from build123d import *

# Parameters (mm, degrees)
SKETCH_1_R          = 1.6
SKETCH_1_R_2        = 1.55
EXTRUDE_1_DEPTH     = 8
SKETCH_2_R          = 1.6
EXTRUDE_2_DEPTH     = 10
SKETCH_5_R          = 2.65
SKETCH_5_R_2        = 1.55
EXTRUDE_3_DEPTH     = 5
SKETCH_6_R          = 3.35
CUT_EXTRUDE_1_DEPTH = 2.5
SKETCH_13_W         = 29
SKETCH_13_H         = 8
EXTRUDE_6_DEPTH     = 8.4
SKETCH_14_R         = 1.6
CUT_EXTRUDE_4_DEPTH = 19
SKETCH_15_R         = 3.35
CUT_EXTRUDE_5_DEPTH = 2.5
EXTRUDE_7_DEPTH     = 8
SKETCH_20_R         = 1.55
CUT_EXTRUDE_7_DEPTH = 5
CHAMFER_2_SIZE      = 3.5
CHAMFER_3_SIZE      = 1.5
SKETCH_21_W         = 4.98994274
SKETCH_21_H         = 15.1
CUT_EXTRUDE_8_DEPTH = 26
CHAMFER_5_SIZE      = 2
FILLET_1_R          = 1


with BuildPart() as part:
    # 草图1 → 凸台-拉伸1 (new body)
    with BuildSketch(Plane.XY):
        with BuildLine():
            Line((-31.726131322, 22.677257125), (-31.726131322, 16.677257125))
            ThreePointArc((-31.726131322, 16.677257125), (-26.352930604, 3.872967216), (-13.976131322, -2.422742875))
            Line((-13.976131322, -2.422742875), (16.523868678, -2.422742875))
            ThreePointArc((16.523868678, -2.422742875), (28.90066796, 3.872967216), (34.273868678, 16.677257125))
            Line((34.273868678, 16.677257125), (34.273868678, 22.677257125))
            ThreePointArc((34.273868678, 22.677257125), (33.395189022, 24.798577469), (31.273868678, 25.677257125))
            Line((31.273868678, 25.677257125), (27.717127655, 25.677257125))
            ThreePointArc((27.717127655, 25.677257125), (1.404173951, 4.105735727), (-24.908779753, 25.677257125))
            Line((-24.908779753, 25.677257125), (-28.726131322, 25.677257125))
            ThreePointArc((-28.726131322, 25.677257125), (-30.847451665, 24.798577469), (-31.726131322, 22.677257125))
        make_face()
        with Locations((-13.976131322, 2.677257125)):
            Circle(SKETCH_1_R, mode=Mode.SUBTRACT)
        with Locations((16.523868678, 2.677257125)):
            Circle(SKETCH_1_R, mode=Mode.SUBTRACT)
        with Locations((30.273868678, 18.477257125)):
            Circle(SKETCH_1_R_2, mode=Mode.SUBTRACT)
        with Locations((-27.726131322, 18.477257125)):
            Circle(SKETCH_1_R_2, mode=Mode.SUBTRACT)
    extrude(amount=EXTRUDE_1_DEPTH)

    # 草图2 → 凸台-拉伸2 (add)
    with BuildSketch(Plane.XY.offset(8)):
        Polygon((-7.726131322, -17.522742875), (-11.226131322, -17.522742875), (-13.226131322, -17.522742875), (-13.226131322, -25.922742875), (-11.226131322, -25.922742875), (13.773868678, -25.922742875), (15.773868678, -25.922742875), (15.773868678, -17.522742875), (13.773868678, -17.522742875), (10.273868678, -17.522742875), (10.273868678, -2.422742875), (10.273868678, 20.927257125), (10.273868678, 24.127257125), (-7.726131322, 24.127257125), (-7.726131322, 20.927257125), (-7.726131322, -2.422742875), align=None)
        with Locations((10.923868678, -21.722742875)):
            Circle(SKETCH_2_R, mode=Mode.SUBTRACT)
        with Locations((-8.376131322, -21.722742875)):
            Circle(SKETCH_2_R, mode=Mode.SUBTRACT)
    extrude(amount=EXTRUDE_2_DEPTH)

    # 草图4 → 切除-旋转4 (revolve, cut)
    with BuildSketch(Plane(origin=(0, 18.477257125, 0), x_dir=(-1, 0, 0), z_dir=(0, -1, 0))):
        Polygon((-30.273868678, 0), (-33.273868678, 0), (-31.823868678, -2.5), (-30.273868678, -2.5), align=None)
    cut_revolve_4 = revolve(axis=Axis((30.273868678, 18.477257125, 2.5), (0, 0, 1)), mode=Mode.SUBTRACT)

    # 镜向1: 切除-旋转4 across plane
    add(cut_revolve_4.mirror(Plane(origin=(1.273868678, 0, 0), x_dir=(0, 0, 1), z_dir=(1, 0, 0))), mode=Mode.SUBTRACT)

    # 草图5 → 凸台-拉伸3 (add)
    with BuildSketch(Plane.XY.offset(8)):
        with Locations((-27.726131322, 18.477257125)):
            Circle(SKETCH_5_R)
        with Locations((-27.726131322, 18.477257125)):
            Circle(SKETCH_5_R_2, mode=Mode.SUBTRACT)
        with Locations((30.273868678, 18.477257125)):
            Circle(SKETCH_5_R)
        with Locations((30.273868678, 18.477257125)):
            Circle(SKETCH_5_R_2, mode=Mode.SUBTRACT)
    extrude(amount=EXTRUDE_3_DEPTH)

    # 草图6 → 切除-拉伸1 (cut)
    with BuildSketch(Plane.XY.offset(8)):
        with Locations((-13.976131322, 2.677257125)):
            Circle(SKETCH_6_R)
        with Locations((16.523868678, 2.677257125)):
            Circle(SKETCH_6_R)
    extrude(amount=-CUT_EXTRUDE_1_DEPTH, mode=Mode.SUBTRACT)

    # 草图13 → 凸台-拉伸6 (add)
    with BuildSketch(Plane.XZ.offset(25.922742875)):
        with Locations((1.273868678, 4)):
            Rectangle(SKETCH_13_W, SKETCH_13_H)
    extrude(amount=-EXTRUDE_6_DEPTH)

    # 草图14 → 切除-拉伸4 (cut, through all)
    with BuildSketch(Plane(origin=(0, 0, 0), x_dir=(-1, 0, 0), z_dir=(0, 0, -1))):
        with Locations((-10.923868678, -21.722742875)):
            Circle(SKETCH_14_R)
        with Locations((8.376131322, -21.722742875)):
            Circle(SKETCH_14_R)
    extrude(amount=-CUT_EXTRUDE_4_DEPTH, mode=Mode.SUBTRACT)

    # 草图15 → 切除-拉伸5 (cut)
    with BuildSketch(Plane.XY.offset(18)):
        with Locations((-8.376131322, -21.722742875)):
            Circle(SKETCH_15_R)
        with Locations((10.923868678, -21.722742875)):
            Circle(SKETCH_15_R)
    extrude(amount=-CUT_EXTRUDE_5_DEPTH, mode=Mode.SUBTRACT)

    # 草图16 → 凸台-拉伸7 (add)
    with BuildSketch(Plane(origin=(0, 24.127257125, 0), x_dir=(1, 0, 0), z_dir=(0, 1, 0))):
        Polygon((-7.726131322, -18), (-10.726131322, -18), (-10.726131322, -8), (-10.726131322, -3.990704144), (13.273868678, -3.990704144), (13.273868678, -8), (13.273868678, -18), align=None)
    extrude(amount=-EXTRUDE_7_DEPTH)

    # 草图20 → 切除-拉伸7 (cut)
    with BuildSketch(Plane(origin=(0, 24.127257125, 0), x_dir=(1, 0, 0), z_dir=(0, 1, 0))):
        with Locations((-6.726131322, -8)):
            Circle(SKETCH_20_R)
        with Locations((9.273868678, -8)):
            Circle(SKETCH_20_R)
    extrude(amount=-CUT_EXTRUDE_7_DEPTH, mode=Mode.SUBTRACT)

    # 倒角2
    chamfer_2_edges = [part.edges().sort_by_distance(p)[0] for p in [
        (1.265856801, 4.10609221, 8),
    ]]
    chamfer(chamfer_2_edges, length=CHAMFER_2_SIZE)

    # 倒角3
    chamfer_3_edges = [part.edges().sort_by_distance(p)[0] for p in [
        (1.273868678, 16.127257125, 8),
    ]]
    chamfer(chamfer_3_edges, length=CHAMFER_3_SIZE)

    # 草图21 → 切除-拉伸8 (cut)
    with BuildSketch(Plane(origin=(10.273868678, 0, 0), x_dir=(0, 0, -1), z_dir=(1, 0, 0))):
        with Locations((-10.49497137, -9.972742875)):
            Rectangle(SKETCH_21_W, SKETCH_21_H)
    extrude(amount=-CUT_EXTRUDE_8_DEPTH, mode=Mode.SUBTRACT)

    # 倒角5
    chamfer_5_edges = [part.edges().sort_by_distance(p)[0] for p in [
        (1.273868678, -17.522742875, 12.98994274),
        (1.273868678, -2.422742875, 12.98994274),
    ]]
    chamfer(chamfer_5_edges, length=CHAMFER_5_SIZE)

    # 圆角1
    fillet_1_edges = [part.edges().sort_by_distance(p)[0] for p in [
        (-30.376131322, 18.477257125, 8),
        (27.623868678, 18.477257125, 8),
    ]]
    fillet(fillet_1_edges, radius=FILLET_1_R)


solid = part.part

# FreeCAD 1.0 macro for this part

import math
import FreeCAD as App
import Part
import Sketcher

V = App.Vector


def edges_at(feature, points):
    """Names of the edges that pass closest to the given points."""
    edges = feature.Shape.Edges
    near = lambda p: min(range(len(edges)), key=lambda i: edges[i].distToShape(Part.Vertex(*p))[0])
    return sorted({f"Edge{near(p) + 1}" for p in points})


def add_polygon(sketch, points):
    """Adds a closed chain of lines whose ends are joined by coincident constraints."""
    first, n = sketch.GeometryCount, len(points)
    for a, b in zip(points, points[1:] + points[:1]):
        sketch.addGeometry(Part.LineSegment(App.Vector(*a, 0), App.Vector(*b, 0)), False)
    for i in range(n):
        sketch.addConstraint(Sketcher.Constraint("Coincident", first + i, 2, first + (i + 1) % n, 1))

doc = App.newDocument("Part")
body = doc.addObject("PartDesign::Body", "Body")

# Sketch on XY plane
sketch1 = body.newObject("Sketcher::SketchObject", "Sketch")
sketch1.AttachmentSupport = (doc.getObject("XY_Plane"), [""])
sketch1.MapMode = "FlatFace"
sketch1.addGeometry(Part.LineSegment(V(-31.726131, 22.677257, 0), V(-31.726131, 16.677257, 0)), False)
sketch1.addGeometry(Part.ArcOfCircle(Part.Circle(V(-11.579797, 17.601927, 0), V(0, 0, 1), 20.167543), math.radians(-177.372103), math.radians(-96.824083)), False)
sketch1.addGeometry(Part.LineSegment(V(-13.976131, -2.422743, 0), V(16.523869, -2.422743, 0)), False)
sketch1.addGeometry(Part.ArcOfCircle(Part.Circle(V(14.127534, 17.601927, 0), V(0, 0, 1), 20.167543), math.radians(-83.175917), math.radians(-2.627897)), False)
sketch1.addGeometry(Part.LineSegment(V(34.273869, 16.677257, 0), V(34.273869, 22.677257, 0)), False)
sketch1.addGeometry(Part.ArcOfCircle(Part.Circle(V(31.273869, 22.677257, 0), V(0, 0, 1), 3), math.radians(0), math.radians(90)), False)
sketch1.addGeometry(Part.LineSegment(V(31.273869, 25.677257, 0), V(27.717128, 25.677257, 0)), False)
sketch1.addGeometry(Part.ArcOfCircle(Part.Circle(V(1.404174, 30.939774, 0), V(0, 0, 1), 26.834038), math.radians(-168.690222), math.radians(-11.309778)), False)
sketch1.addGeometry(Part.LineSegment(V(-24.90878, 25.677257, 0), V(-28.726131, 25.677257, 0)), False)
sketch1.addGeometry(Part.ArcOfCircle(Part.Circle(V(-28.726131, 22.677257, 0), V(0, 0, 1), 3), math.radians(90), math.radians(180)), False)
sketch1.addGeometry(Part.Circle(V(-13.976131, 2.677257, 0), V(0, 0, 1), 1.6), False)
sketch1.addGeometry(Part.Circle(V(16.523869, 2.677257, 0), V(0, 0, 1), 1.6), False)
sketch1.addGeometry(Part.Circle(V(-27.726131, 18.477257, 0), V(0, 0, 1), 1.55), False)
sketch1.addGeometry(Part.Circle(V(30.273869, 18.477257, 0), V(0, 0, 1), 1.55), False)
sketch1.addConstraint(Sketcher.Constraint("Coincident", 0, 2, 1, 1))
sketch1.addConstraint(Sketcher.Constraint("Coincident", 1, 2, 2, 1))
sketch1.addConstraint(Sketcher.Constraint("Coincident", 2, 2, 3, 1))
sketch1.addConstraint(Sketcher.Constraint("Coincident", 3, 2, 4, 1))
sketch1.addConstraint(Sketcher.Constraint("Tangent", 4, 2, 5, 1))
sketch1.addConstraint(Sketcher.Constraint("Tangent", 5, 2, 6, 1))
sketch1.addConstraint(Sketcher.Constraint("Coincident", 6, 2, 7, 2))
sketch1.addConstraint(Sketcher.Constraint("Coincident", 7, 1, 8, 1))
sketch1.addConstraint(Sketcher.Constraint("Tangent", 8, 2, 9, 1))
sketch1.addConstraint(Sketcher.Constraint("Tangent", 9, 2, 0, 1))
sketch1.addConstraint(Sketcher.Constraint("Vertical", 0))
sketch1.addConstraint(Sketcher.Constraint("Horizontal", 2))
sketch1.addConstraint(Sketcher.Constraint("Vertical", 4))
sketch1.addConstraint(Sketcher.Constraint("Horizontal", 6))
sketch1.addConstraint(Sketcher.Constraint("Horizontal", 8))
sketch1.addConstraint(Sketcher.Constraint("Equal", 1, 3))
sketch1.addConstraint(Sketcher.Constraint("Equal", 5, 9))
sketch1.addConstraint(Sketcher.Constraint("Equal", 10, 11))
sketch1.addConstraint(Sketcher.Constraint("Equal", 12, 13))
sketch1.addConstraint(Sketcher.Constraint("Horizontal", 1, 3, 3, 3))
sketch1.addConstraint(Sketcher.Constraint("Horizontal", 5, 3, 9, 3))
sketch1.addConstraint(Sketcher.Constraint("Horizontal", 10, 3, 11, 3))
sketch1.addConstraint(Sketcher.Constraint("Horizontal", 12, 3, 13, 3))
sketch1.addConstraint(Sketcher.Constraint("Horizontal", 0, 2, 3, 2))
sketch1.addConstraint(Sketcher.Constraint("Vertical", 10, 3, 1, 2))
sketch1.addConstraint(Sketcher.Constraint("Vertical", 11, 3, 2, 2))
sketch1.addConstraint(Sketcher.Constraint("Radius", 5, 3.0))
sketch1.addConstraint(Sketcher.Constraint("Diameter", 10, 3.2))
sketch1.addConstraint(Sketcher.Constraint("Diameter", 12, 3.1))
sketch1.addConstraint(Sketcher.Constraint("DistanceY", 0, 2, 0, 1, 6.0))
sketch1.addConstraint(Sketcher.Constraint("DistanceX", 2, 1, 2, 2, 30.5))
sketch1.addConstraint(Sketcher.Constraint("DistanceX", 9, 3, 5, 3, 60.0))
sketch1.addConstraint(Sketcher.Constraint("DistanceY", 10, 3, 9, 3, 20.0))
sketch1.addConstraint(Sketcher.Constraint("DistanceX", 9, 3, 12, 3, 1.0))
sketch1.addConstraint(Sketcher.Constraint("DistanceX", 13, 3, 5, 3, 1.0))
sketch1.addConstraint(Sketcher.Constraint("DistanceY", 12, 3, 9, 3, 4.2))
sketch1.addConstraint(Sketcher.Constraint("DistanceY", 1, 2, 10, 3, 5.1))
sketch1.addConstraint(Sketcher.Constraint("Radius", 7, 26.834038))
sketch1.addConstraint(Sketcher.Constraint("Radius", 1, 20.167543))
sketch1.addConstraint(Sketcher.Constraint("DistanceX", 6, 2, 6, 1, 3.556741))
sketch1.addConstraint(Sketcher.Constraint("DistanceX", 8, 2, 8, 1, 3.817352))
sketch1.addConstraint(Sketcher.Constraint("DistanceX", -1, 1, 5, 3, 31.273869))
sketch1.addConstraint(Sketcher.Constraint("DistanceY", -1, 1, 1, 3, 17.601927))
pad1 = body.newObject("PartDesign::Pad", "Pad")
pad1.Profile = sketch1
pad1.Length = 8

# Sketch on XY plane
sketch2 = body.newObject("Sketcher::SketchObject", "Sketch001")
sketch2.AttachmentSupport = (doc.getObject("XY_Plane"), [""])
sketch2.MapMode = "FlatFace"
sketch2.AttachmentOffset = App.Placement(V(0, 0, 8), App.Rotation())
add_polygon(sketch2, [(-7.726131, -17.522743), (-13.226131, -17.522743), (-13.226131, -25.922743), (15.773869, -25.922743), (15.773869, -17.522743), (10.273869, -17.522743), (10.273869, 24.127257), (-7.726131, 24.127257)])  # lines 0-7
sketch2.addGeometry(Part.Circle(V(-8.376131, -21.722743, 0), V(0, 0, 1), 1.6), False)  # 8
sketch2.addGeometry(Part.Circle(V(10.923869, -21.722743, 0), V(0, 0, 1), 1.6), False)  # 9
sketch2.addConstraint(Sketcher.Constraint("Horizontal", 0))
sketch2.addConstraint(Sketcher.Constraint("Vertical", 1))
sketch2.addConstraint(Sketcher.Constraint("Horizontal", 2))
sketch2.addConstraint(Sketcher.Constraint("Vertical", 3))
sketch2.addConstraint(Sketcher.Constraint("Horizontal", 4))
sketch2.addConstraint(Sketcher.Constraint("Vertical", 5))
sketch2.addConstraint(Sketcher.Constraint("Horizontal", 6))
sketch2.addConstraint(Sketcher.Constraint("Vertical", 7))
sketch2.addConstraint(Sketcher.Constraint("Equal", 8, 9))
sketch2.addConstraint(Sketcher.Constraint("Horizontal", 8, 3, 9, 3))
sketch2.addConstraint(Sketcher.Constraint("Horizontal", 0, 2, 3, 2))
sketch2.addConstraint(Sketcher.Constraint("Equal", 0, 4))
sketch2.addConstraint(Sketcher.Constraint("Diameter", 8, 3.2))
sketch2.addConstraint(Sketcher.Constraint("DistanceX", 2, 1, 2, 2, 29.0))
sketch2.addConstraint(Sketcher.Constraint("DistanceX", 6, 2, 6, 1, 18.0))
sketch2.addConstraint(Sketcher.Constraint("DistanceY", 1, 2, 1, 1, 8.4))
sketch2.addConstraint(Sketcher.Constraint("DistanceY", 5, 1, 5, 2, 41.65))
sketch2.addConstraint(Sketcher.Constraint("DistanceX", 8, 3, 9, 3, 19.3))
sketch2.addConstraint(Sketcher.Constraint("DistanceY", 8, 3, 0, 2, 4.2))
sketch2.addConstraint(Sketcher.Constraint("DistanceX", 0, 2, 8, 3, 4.85))
sketch2.addConstraint(Sketcher.Constraint("DistanceX", 8, 3, -1, 1, 8.376131))
sketch2.addConstraint(Sketcher.Constraint("DistanceY", 8, 3, -1, 1, 21.722743))
pad2 = body.newObject("PartDesign::Pad", "Pad001")
pad2.Profile = sketch2
pad2.Length = 10

# Sketch on XZ plane
sketch3 = body.newObject("Sketcher::SketchObject", "Sketch002")
sketch3.AttachmentSupport = (doc.getObject("XZ_Plane"), [""])
sketch3.MapMode = "FlatFace"
sketch3.AttachmentOffset = App.Placement(V(0, 0, -18.477257), App.Rotation())
add_polygon(sketch3, [(30.273869, 0), (33.273869, 0), (31.823869, 2.5), (30.273869, 2.5)])  # lines 0-3
sketch3.addGeometry(Part.LineSegment(V(30.273869, 0, 0), V(30.273869, 2.5, 0)), True)  # axis
sketch3.addConstraint(Sketcher.Constraint("Horizontal", 0))
sketch3.addConstraint(Sketcher.Constraint("Horizontal", 2))
sketch3.addConstraint(Sketcher.Constraint("Vertical", 3))
sketch3.addConstraint(Sketcher.Constraint("Vertical", 4))
sketch3.addConstraint(Sketcher.Constraint("Coincident", 4, 1, 3, 2))
sketch3.addConstraint(Sketcher.Constraint("PointOnObject", 0, 2, -1))
sketch3.addConstraint(Sketcher.Constraint("Horizontal", 1, 2, 4, 2))
sketch3.addConstraint(Sketcher.Constraint("DistanceX", 0, 1, 0, 2, 3.0))
sketch3.addConstraint(Sketcher.Constraint("DistanceY", 3, 2, 3, 1, 2.5))
sketch3.addConstraint(Sketcher.Constraint("DistanceX", 2, 2, 2, 1, 1.55))
sketch3.addConstraint(Sketcher.Constraint("DistanceX", -1, 1, 0, 2, 33.273869))
groove = body.newObject("PartDesign::Groove", "Groove")
groove.Profile = sketch3
groove.ReferenceAxis = (sketch3, ["Axis0"])
groove.Angle = 360
doc.recompute()

datumplane = body.newObject("PartDesign::Plane", "DatumPlane")
datumplane.AttachmentSupport = (doc.getObject("YZ_Plane"), [""])
datumplane.MapMode = "FlatFace"
datumplane.AttachmentOffset = App.Placement(V(0, 0, 1.273869), App.Rotation())
mirrored = body.newObject("PartDesign::Mirrored", "Mirrored")
mirrored.Originals = [groove]
mirrored.MirrorPlane = (datumplane, [""])
body.Tip = mirrored

# Sketch on XY plane
sketch4 = body.newObject("Sketcher::SketchObject", "Sketch003")
sketch4.AttachmentSupport = (doc.getObject("XY_Plane"), [""])
sketch4.MapMode = "FlatFace"
sketch4.AttachmentOffset = App.Placement(V(0, 0, 8), App.Rotation())
sketch4.addGeometry(Part.Circle(V(-27.726131, 18.477257, 0), V(0, 0, 1), 2.65), False)
sketch4.addGeometry(Part.Circle(V(-27.726131, 18.477257, 0), V(0, 0, 1), 1.55), False)
sketch4.addGeometry(Part.Circle(V(30.273869, 18.477257, 0), V(0, 0, 1), 2.65), False)
sketch4.addGeometry(Part.Circle(V(30.273869, 18.477257, 0), V(0, 0, 1), 1.55), False)
sketch4.addConstraint(Sketcher.Constraint("Coincident", 1, 3, 0, 3))
sketch4.addConstraint(Sketcher.Constraint("Coincident", 3, 3, 2, 3))
sketch4.addConstraint(Sketcher.Constraint("Equal", 0, 2))
sketch4.addConstraint(Sketcher.Constraint("Equal", 1, 3))
sketch4.addConstraint(Sketcher.Constraint("Horizontal", 1, 3, 2, 3))
sketch4.addConstraint(Sketcher.Constraint("Diameter", 0, 5.3))
sketch4.addConstraint(Sketcher.Constraint("Diameter", 1, 3.1))
sketch4.addConstraint(Sketcher.Constraint("DistanceX", 0, 3, 2, 3, 58.0))
sketch4.addConstraint(Sketcher.Constraint("DistanceX", 0, 3, -1, 1, 27.726131))
sketch4.addConstraint(Sketcher.Constraint("DistanceY", -1, 1, 0, 3, 18.477257))
pad3 = body.newObject("PartDesign::Pad", "Pad002")
pad3.Profile = sketch4
pad3.Length = 5

# Sketch on XY plane
sketch5 = body.newObject("Sketcher::SketchObject", "Sketch004")
sketch5.AttachmentSupport = (doc.getObject("XY_Plane"), [""])
sketch5.MapMode = "FlatFace"
sketch5.AttachmentOffset = App.Placement(V(0, 0, 8), App.Rotation())
sketch5.addGeometry(Part.Circle(V(-13.976131, 2.677257, 0), V(0, 0, 1), 3.35), False)
sketch5.addGeometry(Part.Circle(V(16.523869, 2.677257, 0), V(0, 0, 1), 3.35), False)
sketch5.addConstraint(Sketcher.Constraint("Equal", 0, 1))
sketch5.addConstraint(Sketcher.Constraint("Horizontal", 0, 3, 1, 3))
sketch5.addConstraint(Sketcher.Constraint("Diameter", 0, 6.7))
sketch5.addConstraint(Sketcher.Constraint("DistanceX", 0, 3, 1, 3, 30.5))
sketch5.addConstraint(Sketcher.Constraint("DistanceX", 0, 3, -1, 1, 13.976131))
sketch5.addConstraint(Sketcher.Constraint("DistanceY", -1, 1, 0, 3, 2.677257))
pocket1 = body.newObject("PartDesign::Pocket", "Pocket")
pocket1.Profile = sketch5
pocket1.Length = 2.5

# Sketch on XZ plane
sketch6 = body.newObject("Sketcher::SketchObject", "Sketch005")
sketch6.AttachmentSupport = (doc.getObject("XZ_Plane"), [""])
sketch6.MapMode = "FlatFace"
sketch6.AttachmentOffset = App.Placement(V(0, 0, 25.922743), App.Rotation())
add_polygon(sketch6, [(-13.226131, 8), (-13.226131, 0), (15.773869, 0), (15.773869, 8)])  # lines 0-3
sketch6.addConstraint(Sketcher.Constraint("Vertical", 0))
sketch6.addConstraint(Sketcher.Constraint("Horizontal", 1))
sketch6.addConstraint(Sketcher.Constraint("Vertical", 2))
sketch6.addConstraint(Sketcher.Constraint("Horizontal", 3))
sketch6.addConstraint(Sketcher.Constraint("PointOnObject", 0, 2, -1))
sketch6.addConstraint(Sketcher.Constraint("DistanceX", 1, 1, 1, 2, 29.0))
sketch6.addConstraint(Sketcher.Constraint("DistanceY", 0, 2, 0, 1, 8.0))
sketch6.addConstraint(Sketcher.Constraint("DistanceX", 0, 2, -1, 1, 13.226131))
pad4 = body.newObject("PartDesign::Pad", "Pad003")
pad4.Profile = sketch6
pad4.Length = 8.4
pad4.Reversed = True

# Sketch on XY plane
sketch7 = body.newObject("Sketcher::SketchObject", "Sketch006")
sketch7.AttachmentSupport = (doc.getObject("XY_Plane"), [""])
sketch7.MapMode = "FlatFace"
sketch7.addGeometry(Part.Circle(V(10.923869, -21.722743, 0), V(0, 0, 1), 1.6), False)
sketch7.addGeometry(Part.Circle(V(-8.376131, -21.722743, 0), V(0, 0, 1), 1.6), False)
sketch7.addConstraint(Sketcher.Constraint("Equal", 0, 1))
sketch7.addConstraint(Sketcher.Constraint("Horizontal", 0, 3, 1, 3))
sketch7.addConstraint(Sketcher.Constraint("Diameter", 0, 3.2))
sketch7.addConstraint(Sketcher.Constraint("DistanceX", 1, 3, 0, 3, 19.3))
sketch7.addConstraint(Sketcher.Constraint("DistanceX", -1, 1, 0, 3, 10.923869))
sketch7.addConstraint(Sketcher.Constraint("DistanceY", 0, 3, -1, 1, 21.722743))
pocket2 = body.newObject("PartDesign::Pocket", "Pocket001")
pocket2.Profile = sketch7
pocket2.Type = "ThroughAll"
pocket2.Reversed = True

# Sketch on XY plane
sketch8 = body.newObject("Sketcher::SketchObject", "Sketch007")
sketch8.AttachmentSupport = (doc.getObject("XY_Plane"), [""])
sketch8.MapMode = "FlatFace"
sketch8.AttachmentOffset = App.Placement(V(0, 0, 18), App.Rotation())
sketch8.addGeometry(Part.Circle(V(-8.376131, -21.722743, 0), V(0, 0, 1), 3.35), False)
sketch8.addGeometry(Part.Circle(V(10.923869, -21.722743, 0), V(0, 0, 1), 3.35), False)
sketch8.addConstraint(Sketcher.Constraint("Equal", 0, 1))
sketch8.addConstraint(Sketcher.Constraint("Horizontal", 0, 3, 1, 3))
sketch8.addConstraint(Sketcher.Constraint("Diameter", 0, 6.7))
sketch8.addConstraint(Sketcher.Constraint("DistanceX", 0, 3, 1, 3, 19.3))
sketch8.addConstraint(Sketcher.Constraint("DistanceX", 0, 3, -1, 1, 8.376131))
sketch8.addConstraint(Sketcher.Constraint("DistanceY", 0, 3, -1, 1, 21.722743))
pocket3 = body.newObject("PartDesign::Pocket", "Pocket002")
pocket3.Profile = sketch8
pocket3.Length = 2.5

# Sketch on XZ plane
sketch9 = body.newObject("Sketcher::SketchObject", "Sketch008")
sketch9.AttachmentSupport = (doc.getObject("XZ_Plane"), [""])
sketch9.MapMode = "FlatFace"
sketch9.AttachmentOffset = App.Placement(V(0, 0, -24.127257), App.Rotation())
add_polygon(sketch9, [(-10.726131, 18), (13.273869, 18), (13.273869, 3.990704), (-10.726131, 3.990704)])  # lines 0-3
sketch9.addConstraint(Sketcher.Constraint("Horizontal", 0))
sketch9.addConstraint(Sketcher.Constraint("Vertical", 1))
sketch9.addConstraint(Sketcher.Constraint("Horizontal", 2))
sketch9.addConstraint(Sketcher.Constraint("Vertical", 3))
sketch9.addConstraint(Sketcher.Constraint("DistanceX", 0, 1, 0, 2, 24.0))
sketch9.addConstraint(Sketcher.Constraint("DistanceY", -1, 1, 0, 2, 18.0))
sketch9.addConstraint(Sketcher.Constraint("DistanceY", 1, 2, 1, 1, 14.009296))
sketch9.addConstraint(Sketcher.Constraint("DistanceX", -1, 1, 0, 2, 13.273869))
pad5 = body.newObject("PartDesign::Pad", "Pad004")
pad5.Profile = sketch9
pad5.Length = 8

# Sketch on XZ plane
sketch10 = body.newObject("Sketcher::SketchObject", "Sketch009")
sketch10.AttachmentSupport = (doc.getObject("XZ_Plane"), [""])
sketch10.MapMode = "FlatFace"
sketch10.AttachmentOffset = App.Placement(V(0, 0, -24.127257), App.Rotation())
sketch10.addGeometry(Part.Circle(V(-6.726131, 8, 0), V(0, 0, 1), 1.55), False)
sketch10.addGeometry(Part.Circle(V(9.273869, 8, 0), V(0, 0, 1), 1.55), False)
sketch10.addConstraint(Sketcher.Constraint("Equal", 0, 1))
sketch10.addConstraint(Sketcher.Constraint("Horizontal", 0, 3, 1, 3))
sketch10.addConstraint(Sketcher.Constraint("Diameter", 0, 3.1))
sketch10.addConstraint(Sketcher.Constraint("DistanceY", -1, 1, 0, 3, 8.0))
sketch10.addConstraint(Sketcher.Constraint("DistanceX", 0, 3, 1, 3, 16.0))
sketch10.addConstraint(Sketcher.Constraint("DistanceX", 0, 3, -1, 1, 6.726131))
pocket4 = body.newObject("PartDesign::Pocket", "Pocket003")
pocket4.Profile = sketch10
pocket4.Length = 5
pocket4.Reversed = True
doc.recompute()

chamfer = body.newObject("PartDesign::Chamfer", "Chamfer")
chamfer.Base = (pocket4, edges_at(pocket4, [(1.266, 4.106, 8)]))
chamfer.Size = 3.5
doc.recompute()

chamfer2 = body.newObject("PartDesign::Chamfer", "Chamfer001")
chamfer2.Base = (chamfer, edges_at(chamfer, [(1.274, 16.127, 8)]))
chamfer2.Size = 1.5

# Sketch on YZ plane
sketch11 = body.newObject("Sketcher::SketchObject", "Sketch010")
sketch11.AttachmentSupport = (doc.getObject("YZ_Plane"), [""])
sketch11.MapMode = "FlatFace"
sketch11.AttachmentOffset = App.Placement(V(0, 0, 10.273869), App.Rotation())
add_polygon(sketch11, [(-2.422743, 12.989943), (-17.522743, 12.989943), (-17.522743, 8), (-2.422743, 8)])  # lines 0-3
sketch11.addConstraint(Sketcher.Constraint("Horizontal", 0))
sketch11.addConstraint(Sketcher.Constraint("Vertical", 1))
sketch11.addConstraint(Sketcher.Constraint("Horizontal", 2))
sketch11.addConstraint(Sketcher.Constraint("Vertical", 3))
sketch11.addConstraint(Sketcher.Constraint("DistanceX", 0, 2, 0, 1, 15.1))
sketch11.addConstraint(Sketcher.Constraint("DistanceY", -1, 1, 1, 2, 8.0))
sketch11.addConstraint(Sketcher.Constraint("DistanceY", 1, 2, 1, 1, 4.989943))
sketch11.addConstraint(Sketcher.Constraint("DistanceX", 0, 2, -1, 1, 17.522743))
pocket5 = body.newObject("PartDesign::Pocket", "Pocket004")
pocket5.Profile = sketch11
pocket5.Length = 26
doc.recompute()

chamfer3 = body.newObject("PartDesign::Chamfer", "Chamfer002")
chamfer3.Base = (pocket5, edges_at(pocket5, [(1.274, -17.523, 12.99), (1.274, -2.423, 12.99)]))
chamfer3.Size = 2
doc.recompute()

fillet = body.newObject("PartDesign::Fillet", "Fillet")
fillet.Base = (chamfer3, edges_at(chamfer3, [(-30.376, 18.477, 8), (27.624, 18.477, 8)]))
fillet.Radius = 1

doc.recompute()
